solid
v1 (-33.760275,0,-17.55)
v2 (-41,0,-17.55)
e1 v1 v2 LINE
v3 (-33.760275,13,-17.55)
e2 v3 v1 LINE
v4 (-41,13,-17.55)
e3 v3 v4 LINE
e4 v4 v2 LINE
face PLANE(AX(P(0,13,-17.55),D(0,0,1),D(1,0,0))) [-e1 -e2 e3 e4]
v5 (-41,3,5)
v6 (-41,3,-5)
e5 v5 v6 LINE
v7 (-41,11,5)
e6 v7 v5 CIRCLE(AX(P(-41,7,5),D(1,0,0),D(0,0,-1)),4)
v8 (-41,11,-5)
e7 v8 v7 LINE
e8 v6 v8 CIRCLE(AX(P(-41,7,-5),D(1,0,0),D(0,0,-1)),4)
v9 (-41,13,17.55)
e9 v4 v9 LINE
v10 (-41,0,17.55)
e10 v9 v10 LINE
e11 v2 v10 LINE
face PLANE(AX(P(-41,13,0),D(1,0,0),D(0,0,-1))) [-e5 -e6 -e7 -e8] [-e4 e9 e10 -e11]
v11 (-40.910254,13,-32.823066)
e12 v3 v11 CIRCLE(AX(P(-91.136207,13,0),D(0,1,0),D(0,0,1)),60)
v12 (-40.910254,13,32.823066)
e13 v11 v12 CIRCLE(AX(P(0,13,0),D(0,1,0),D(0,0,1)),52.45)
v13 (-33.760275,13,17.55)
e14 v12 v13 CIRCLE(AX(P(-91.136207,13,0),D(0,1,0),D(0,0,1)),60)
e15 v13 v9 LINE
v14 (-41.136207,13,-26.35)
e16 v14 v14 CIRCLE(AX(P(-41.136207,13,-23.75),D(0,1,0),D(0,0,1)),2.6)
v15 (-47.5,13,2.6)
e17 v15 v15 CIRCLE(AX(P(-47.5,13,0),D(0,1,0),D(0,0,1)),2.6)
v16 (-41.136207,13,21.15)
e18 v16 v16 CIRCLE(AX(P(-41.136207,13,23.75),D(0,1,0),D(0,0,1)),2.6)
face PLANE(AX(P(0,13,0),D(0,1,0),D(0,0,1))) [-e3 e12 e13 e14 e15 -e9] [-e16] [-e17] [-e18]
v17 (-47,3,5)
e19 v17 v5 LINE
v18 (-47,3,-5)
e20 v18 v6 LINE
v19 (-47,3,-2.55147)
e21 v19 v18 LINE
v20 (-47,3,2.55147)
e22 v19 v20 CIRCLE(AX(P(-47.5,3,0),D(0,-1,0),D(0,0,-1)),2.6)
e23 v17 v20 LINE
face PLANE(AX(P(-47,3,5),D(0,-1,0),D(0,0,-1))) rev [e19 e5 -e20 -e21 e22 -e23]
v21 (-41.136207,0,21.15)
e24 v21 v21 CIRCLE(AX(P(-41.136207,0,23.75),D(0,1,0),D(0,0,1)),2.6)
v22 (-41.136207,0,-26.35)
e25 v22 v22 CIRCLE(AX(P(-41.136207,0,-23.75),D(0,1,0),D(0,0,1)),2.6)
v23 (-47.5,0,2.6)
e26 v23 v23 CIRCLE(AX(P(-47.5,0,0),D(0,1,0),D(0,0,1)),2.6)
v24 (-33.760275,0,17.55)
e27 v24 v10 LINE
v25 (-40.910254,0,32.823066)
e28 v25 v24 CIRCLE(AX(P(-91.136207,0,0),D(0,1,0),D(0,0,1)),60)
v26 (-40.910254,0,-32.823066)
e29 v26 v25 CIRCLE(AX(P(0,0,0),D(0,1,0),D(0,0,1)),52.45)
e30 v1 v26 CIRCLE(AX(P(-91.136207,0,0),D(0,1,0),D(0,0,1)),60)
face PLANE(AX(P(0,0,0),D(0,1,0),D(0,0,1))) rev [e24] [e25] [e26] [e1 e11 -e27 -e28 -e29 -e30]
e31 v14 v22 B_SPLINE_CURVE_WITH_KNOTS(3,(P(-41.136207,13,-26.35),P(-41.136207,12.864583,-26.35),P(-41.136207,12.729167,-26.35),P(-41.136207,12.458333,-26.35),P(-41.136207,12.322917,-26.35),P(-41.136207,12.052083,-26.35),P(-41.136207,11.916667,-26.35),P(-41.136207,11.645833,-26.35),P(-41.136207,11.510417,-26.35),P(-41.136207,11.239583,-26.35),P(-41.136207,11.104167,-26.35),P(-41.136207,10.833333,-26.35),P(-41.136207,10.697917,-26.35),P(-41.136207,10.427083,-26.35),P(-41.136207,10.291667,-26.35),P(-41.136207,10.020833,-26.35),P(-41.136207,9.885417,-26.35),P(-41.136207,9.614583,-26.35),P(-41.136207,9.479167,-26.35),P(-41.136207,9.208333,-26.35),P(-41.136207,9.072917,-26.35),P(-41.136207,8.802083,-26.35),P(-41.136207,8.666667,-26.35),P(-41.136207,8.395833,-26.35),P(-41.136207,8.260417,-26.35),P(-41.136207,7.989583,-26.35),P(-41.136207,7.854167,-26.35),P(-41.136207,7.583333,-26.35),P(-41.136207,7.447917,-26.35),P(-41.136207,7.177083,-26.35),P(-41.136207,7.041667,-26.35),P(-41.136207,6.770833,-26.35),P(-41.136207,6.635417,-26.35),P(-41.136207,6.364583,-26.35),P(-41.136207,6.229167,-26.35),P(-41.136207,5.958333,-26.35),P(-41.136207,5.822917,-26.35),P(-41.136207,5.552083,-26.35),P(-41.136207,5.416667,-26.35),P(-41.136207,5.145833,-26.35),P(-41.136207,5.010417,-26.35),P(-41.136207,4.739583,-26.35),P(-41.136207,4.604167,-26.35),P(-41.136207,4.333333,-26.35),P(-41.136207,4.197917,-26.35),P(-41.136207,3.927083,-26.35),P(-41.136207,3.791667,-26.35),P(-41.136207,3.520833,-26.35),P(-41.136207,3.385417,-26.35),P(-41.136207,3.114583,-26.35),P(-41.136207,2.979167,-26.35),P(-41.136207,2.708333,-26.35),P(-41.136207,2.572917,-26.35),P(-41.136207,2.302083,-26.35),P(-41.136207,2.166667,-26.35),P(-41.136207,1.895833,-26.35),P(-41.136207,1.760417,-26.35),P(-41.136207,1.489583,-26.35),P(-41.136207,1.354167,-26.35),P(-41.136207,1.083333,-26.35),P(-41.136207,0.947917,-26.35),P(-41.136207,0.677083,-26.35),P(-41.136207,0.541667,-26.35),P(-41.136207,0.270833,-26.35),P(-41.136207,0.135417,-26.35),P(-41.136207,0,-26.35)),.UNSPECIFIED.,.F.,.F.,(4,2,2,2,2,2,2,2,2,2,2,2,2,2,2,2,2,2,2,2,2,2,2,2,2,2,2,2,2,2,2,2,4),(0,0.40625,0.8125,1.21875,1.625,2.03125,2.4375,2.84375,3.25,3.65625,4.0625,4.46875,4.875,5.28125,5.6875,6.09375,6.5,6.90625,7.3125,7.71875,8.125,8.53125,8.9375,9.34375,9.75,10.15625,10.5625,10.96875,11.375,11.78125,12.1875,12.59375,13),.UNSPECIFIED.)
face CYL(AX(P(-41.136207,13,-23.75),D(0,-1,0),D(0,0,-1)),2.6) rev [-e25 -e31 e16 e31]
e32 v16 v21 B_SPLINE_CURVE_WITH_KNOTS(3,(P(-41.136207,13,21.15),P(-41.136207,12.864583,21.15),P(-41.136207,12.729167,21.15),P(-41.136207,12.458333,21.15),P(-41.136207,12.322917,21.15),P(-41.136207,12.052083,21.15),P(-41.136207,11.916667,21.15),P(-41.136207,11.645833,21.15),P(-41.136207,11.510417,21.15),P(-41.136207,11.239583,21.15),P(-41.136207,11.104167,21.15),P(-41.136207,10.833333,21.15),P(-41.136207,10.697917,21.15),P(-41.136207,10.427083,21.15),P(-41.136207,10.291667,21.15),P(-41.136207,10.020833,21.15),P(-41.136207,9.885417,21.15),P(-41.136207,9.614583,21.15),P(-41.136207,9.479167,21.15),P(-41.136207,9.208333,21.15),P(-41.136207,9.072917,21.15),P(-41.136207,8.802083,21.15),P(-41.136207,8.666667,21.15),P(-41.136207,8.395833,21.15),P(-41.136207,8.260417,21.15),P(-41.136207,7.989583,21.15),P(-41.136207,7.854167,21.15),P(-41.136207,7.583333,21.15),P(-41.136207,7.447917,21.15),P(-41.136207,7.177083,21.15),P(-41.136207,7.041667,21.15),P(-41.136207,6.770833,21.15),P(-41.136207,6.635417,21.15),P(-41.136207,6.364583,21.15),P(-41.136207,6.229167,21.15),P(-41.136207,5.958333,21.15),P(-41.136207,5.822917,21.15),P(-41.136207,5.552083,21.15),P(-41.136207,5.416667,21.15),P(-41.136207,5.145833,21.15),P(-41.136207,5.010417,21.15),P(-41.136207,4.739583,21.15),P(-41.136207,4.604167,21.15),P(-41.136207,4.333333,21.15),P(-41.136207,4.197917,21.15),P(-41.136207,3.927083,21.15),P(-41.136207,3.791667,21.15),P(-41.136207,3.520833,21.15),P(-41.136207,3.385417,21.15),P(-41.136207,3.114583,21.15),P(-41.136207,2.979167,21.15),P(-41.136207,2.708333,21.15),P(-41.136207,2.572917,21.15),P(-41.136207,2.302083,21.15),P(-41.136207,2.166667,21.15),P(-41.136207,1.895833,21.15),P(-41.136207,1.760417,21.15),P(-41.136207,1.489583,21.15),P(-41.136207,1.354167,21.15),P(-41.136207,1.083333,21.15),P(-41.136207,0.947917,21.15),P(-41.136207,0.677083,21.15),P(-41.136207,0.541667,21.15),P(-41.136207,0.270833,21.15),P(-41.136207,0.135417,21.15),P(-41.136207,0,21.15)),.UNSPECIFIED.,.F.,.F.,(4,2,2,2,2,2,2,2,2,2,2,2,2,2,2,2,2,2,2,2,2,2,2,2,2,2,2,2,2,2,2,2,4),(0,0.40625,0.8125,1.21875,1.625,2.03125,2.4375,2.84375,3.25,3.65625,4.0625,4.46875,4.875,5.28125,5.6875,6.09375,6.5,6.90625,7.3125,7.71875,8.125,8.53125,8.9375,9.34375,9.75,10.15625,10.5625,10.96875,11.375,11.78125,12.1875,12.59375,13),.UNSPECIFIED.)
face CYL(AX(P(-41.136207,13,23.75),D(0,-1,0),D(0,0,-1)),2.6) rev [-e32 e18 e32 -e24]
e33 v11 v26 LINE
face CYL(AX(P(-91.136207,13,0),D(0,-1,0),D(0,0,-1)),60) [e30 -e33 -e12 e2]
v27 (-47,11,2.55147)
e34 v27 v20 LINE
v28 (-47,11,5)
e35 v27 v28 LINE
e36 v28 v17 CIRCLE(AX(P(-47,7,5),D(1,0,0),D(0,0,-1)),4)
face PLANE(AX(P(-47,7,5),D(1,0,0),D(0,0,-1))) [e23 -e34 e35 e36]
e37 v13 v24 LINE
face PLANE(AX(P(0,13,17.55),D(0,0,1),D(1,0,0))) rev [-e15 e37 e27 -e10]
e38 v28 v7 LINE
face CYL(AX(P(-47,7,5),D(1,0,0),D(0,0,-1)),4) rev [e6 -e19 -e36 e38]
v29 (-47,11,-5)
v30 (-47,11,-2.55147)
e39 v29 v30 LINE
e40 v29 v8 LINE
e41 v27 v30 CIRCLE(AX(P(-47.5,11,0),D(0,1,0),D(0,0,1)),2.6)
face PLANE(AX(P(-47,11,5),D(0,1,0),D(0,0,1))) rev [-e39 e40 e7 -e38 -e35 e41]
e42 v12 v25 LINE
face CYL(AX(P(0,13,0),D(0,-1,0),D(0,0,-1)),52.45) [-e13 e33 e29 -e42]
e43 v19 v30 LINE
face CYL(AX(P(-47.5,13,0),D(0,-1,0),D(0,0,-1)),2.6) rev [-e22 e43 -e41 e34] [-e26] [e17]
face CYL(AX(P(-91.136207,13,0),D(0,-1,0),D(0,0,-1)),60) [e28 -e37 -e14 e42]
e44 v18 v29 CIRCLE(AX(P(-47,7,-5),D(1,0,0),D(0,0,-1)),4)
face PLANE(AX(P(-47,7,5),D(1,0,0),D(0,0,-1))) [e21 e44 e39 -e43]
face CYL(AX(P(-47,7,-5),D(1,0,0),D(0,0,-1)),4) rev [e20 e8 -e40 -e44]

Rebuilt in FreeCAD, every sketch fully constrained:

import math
import FreeCAD as App
import Part
import Sketcher

doc = App.newDocument("Part")
body = doc.addObject("PartDesign::Body", "Body")

sketch1 = body.newObject("Sketcher::SketchObject", "Sketch")
sketch1.AttachmentSupport = (doc.getObject("XZ_Plane"), [""])
sketch1.MapMode = "FlatFace"
sketch1.addGeometry(Part.LineSegment(App.Vector(-33.8, 17.6, 0), App.Vector(-41, 17.6, 0)), False)
sketch1.addGeometry(Part.LineSegment(App.Vector(-41, 17.6, 0), App.Vector(-41, -17.6, 0)), False)
sketch1.addGeometry(Part.LineSegment(App.Vector(-41, -17.6, 0), App.Vector(-33.8, -17.6, 0)), False)
sketch1.addGeometry(Part.ArcOfCircle(Part.Circle(App.Vector(-91.1, 0, 0), App.Vector(0, 0, 1), 60), math.radians(-33.16), math.radians(-17.01)), False)
sketch1.addGeometry(Part.ArcOfCircle(Part.Circle(App.Vector(0, 0, 0), App.Vector(0, 0, 1), 52.5), math.radians(141), math.radians(219)), False)
sketch1.addGeometry(Part.ArcOfCircle(Part.Circle(App.Vector(-91.1, 0, 0), App.Vector(0, 0, 1), 60), math.radians(17.01), math.radians(33.16)), False)
sketch1.addGeometry(Part.Circle(App.Vector(-41.1, 23.8, 0), App.Vector(0, 0, 1), 2.6), False)
sketch1.addGeometry(Part.Circle(App.Vector(-47.5, 0, 0), App.Vector(0, 0, 1), 2.6), False)
sketch1.addGeometry(Part.Circle(App.Vector(-41.1, -23.8, 0), App.Vector(0, 0, 1), 2.6), False)
sketch1.addConstraint(Sketcher.Constraint("Coincident", 0, 2, 1, 1))
sketch1.addConstraint(Sketcher.Constraint("Coincident", 1, 2, 2, 1))
sketch1.addConstraint(Sketcher.Constraint("Coincident", 2, 2, 3, 2))
sketch1.addConstraint(Sketcher.Constraint("Coincident", 3, 1, 4, 2))
sketch1.addConstraint(Sketcher.Constraint("Coincident", 4, 1, 5, 2))
sketch1.addConstraint(Sketcher.Constraint("Coincident", 5, 1, 0, 1))
sketch1.addConstraint(Sketcher.Constraint("Horizontal", 0))
sketch1.addConstraint(Sketcher.Constraint("Vertical", 1))
sketch1.addConstraint(Sketcher.Constraint("Horizontal", 2))
sketch1.addConstraint(Sketcher.Constraint("Coincident", 4, 3, -1, 1))
sketch1.addConstraint(Sketcher.Constraint("Coincident", 5, 3, 3, 3))
sketch1.addConstraint(Sketcher.Constraint("Equal", 3, 5))
sketch1.addConstraint(Sketcher.Constraint("Equal", 6, 7))
sketch1.addConstraint(Sketcher.Constraint("Equal", 7, 8))
sketch1.addConstraint(Sketcher.Constraint("Symmetric", 6, 3, 8, 3, -1))
sketch1.addConstraint(Sketcher.Constraint("Symmetric", 2, 2, 5, 1, -1))
sketch1.addConstraint(Sketcher.Constraint("PointOnObject", 7, 3, -1))
sketch1.addConstraint(Sketcher.Constraint("Radius", 3, 60.0))
sketch1.addConstraint(Sketcher.Constraint("Diameter", 6, 5.2))
sketch1.addConstraint(Sketcher.Constraint("Radius", 4, 52.45))
sketch1.addConstraint(Sketcher.Constraint("DistanceY", 1, 2, 1, 1, 35.1))
sketch1.addConstraint(Sketcher.Constraint("DistanceX", 0, 2, -1, 1, 41.0))
sketch1.addConstraint(Sketcher.Constraint("DistanceX", 5, 3, 6, 3, 50.0))
sketch1.addConstraint(Sketcher.Constraint("DistanceX", 7, 3, -1, 1, 47.5))
sketch1.addConstraint(Sketcher.Constraint("DistanceY", 8, 3, 6, 3, 47.5))
sketch1.addConstraint(Sketcher.Constraint("DistanceX", 0, 2, 0, 1, 7.239725))
pad1 = body.newObject("PartDesign::Pad", "Pad")
pad1.Profile = sketch1
pad1.Length = 13
pad1.Reversed = True

sketch2 = body.newObject("Sketcher::SketchObject", "Sketch001")
sketch2.AttachmentSupport = (doc.getObject("YZ_Plane"), [""])
sketch2.MapMode = "FlatFace"
sketch2.AttachmentOffset = App.Placement(App.Vector(0, 0, -41), App.Rotation())
sketch2.addGeometry(Part.LineSegment(App.Vector(11, -5, 0), App.Vector(11, 5, 0)), False)
sketch2.addGeometry(Part.ArcOfCircle(Part.Circle(App.Vector(7, 5, 0), App.Vector(0, 0, 1), 4), math.radians(0), math.radians(180)), False)
sketch2.addGeometry(Part.LineSegment(App.Vector(3, 5, 0), App.Vector(3, -5, 0)), False)
sketch2.addGeometry(Part.ArcOfCircle(Part.Circle(App.Vector(7, -5, 0), App.Vector(0, 0, 1), 4), math.radians(180), math.radians(360)), False)
sketch2.addConstraint(Sketcher.Constraint("Tangent", 0, 2, 1, 1))
sketch2.addConstraint(Sketcher.Constraint("Tangent", 1, 2, 2, 1))
sketch2.addConstraint(Sketcher.Constraint("Tangent", 2, 2, 3, 1))
sketch2.addConstraint(Sketcher.Constraint("Tangent", 3, 2, 0, 1))
sketch2.addConstraint(Sketcher.Constraint("Vertical", 0))
sketch2.addConstraint(Sketcher.Constraint("Vertical", 2))
sketch2.addConstraint(Sketcher.Constraint("Radius", 1, 4.0))
sketch2.addConstraint(Sketcher.Constraint("DistanceY", 0, 1, 0, 2, 10.0))
sketch2.addConstraint(Sketcher.Constraint("DistanceX", -1, 1, 1, 3, 7.0))
sketch2.addConstraint(Sketcher.Constraint("DistanceY", -1, 1, 1, 3, 5.0))
pocket1 = body.newObject("PartDesign::Pocket", "Pocket")
pocket1.Profile = sketch2
pocket1.Length = 6

doc.recompute()
